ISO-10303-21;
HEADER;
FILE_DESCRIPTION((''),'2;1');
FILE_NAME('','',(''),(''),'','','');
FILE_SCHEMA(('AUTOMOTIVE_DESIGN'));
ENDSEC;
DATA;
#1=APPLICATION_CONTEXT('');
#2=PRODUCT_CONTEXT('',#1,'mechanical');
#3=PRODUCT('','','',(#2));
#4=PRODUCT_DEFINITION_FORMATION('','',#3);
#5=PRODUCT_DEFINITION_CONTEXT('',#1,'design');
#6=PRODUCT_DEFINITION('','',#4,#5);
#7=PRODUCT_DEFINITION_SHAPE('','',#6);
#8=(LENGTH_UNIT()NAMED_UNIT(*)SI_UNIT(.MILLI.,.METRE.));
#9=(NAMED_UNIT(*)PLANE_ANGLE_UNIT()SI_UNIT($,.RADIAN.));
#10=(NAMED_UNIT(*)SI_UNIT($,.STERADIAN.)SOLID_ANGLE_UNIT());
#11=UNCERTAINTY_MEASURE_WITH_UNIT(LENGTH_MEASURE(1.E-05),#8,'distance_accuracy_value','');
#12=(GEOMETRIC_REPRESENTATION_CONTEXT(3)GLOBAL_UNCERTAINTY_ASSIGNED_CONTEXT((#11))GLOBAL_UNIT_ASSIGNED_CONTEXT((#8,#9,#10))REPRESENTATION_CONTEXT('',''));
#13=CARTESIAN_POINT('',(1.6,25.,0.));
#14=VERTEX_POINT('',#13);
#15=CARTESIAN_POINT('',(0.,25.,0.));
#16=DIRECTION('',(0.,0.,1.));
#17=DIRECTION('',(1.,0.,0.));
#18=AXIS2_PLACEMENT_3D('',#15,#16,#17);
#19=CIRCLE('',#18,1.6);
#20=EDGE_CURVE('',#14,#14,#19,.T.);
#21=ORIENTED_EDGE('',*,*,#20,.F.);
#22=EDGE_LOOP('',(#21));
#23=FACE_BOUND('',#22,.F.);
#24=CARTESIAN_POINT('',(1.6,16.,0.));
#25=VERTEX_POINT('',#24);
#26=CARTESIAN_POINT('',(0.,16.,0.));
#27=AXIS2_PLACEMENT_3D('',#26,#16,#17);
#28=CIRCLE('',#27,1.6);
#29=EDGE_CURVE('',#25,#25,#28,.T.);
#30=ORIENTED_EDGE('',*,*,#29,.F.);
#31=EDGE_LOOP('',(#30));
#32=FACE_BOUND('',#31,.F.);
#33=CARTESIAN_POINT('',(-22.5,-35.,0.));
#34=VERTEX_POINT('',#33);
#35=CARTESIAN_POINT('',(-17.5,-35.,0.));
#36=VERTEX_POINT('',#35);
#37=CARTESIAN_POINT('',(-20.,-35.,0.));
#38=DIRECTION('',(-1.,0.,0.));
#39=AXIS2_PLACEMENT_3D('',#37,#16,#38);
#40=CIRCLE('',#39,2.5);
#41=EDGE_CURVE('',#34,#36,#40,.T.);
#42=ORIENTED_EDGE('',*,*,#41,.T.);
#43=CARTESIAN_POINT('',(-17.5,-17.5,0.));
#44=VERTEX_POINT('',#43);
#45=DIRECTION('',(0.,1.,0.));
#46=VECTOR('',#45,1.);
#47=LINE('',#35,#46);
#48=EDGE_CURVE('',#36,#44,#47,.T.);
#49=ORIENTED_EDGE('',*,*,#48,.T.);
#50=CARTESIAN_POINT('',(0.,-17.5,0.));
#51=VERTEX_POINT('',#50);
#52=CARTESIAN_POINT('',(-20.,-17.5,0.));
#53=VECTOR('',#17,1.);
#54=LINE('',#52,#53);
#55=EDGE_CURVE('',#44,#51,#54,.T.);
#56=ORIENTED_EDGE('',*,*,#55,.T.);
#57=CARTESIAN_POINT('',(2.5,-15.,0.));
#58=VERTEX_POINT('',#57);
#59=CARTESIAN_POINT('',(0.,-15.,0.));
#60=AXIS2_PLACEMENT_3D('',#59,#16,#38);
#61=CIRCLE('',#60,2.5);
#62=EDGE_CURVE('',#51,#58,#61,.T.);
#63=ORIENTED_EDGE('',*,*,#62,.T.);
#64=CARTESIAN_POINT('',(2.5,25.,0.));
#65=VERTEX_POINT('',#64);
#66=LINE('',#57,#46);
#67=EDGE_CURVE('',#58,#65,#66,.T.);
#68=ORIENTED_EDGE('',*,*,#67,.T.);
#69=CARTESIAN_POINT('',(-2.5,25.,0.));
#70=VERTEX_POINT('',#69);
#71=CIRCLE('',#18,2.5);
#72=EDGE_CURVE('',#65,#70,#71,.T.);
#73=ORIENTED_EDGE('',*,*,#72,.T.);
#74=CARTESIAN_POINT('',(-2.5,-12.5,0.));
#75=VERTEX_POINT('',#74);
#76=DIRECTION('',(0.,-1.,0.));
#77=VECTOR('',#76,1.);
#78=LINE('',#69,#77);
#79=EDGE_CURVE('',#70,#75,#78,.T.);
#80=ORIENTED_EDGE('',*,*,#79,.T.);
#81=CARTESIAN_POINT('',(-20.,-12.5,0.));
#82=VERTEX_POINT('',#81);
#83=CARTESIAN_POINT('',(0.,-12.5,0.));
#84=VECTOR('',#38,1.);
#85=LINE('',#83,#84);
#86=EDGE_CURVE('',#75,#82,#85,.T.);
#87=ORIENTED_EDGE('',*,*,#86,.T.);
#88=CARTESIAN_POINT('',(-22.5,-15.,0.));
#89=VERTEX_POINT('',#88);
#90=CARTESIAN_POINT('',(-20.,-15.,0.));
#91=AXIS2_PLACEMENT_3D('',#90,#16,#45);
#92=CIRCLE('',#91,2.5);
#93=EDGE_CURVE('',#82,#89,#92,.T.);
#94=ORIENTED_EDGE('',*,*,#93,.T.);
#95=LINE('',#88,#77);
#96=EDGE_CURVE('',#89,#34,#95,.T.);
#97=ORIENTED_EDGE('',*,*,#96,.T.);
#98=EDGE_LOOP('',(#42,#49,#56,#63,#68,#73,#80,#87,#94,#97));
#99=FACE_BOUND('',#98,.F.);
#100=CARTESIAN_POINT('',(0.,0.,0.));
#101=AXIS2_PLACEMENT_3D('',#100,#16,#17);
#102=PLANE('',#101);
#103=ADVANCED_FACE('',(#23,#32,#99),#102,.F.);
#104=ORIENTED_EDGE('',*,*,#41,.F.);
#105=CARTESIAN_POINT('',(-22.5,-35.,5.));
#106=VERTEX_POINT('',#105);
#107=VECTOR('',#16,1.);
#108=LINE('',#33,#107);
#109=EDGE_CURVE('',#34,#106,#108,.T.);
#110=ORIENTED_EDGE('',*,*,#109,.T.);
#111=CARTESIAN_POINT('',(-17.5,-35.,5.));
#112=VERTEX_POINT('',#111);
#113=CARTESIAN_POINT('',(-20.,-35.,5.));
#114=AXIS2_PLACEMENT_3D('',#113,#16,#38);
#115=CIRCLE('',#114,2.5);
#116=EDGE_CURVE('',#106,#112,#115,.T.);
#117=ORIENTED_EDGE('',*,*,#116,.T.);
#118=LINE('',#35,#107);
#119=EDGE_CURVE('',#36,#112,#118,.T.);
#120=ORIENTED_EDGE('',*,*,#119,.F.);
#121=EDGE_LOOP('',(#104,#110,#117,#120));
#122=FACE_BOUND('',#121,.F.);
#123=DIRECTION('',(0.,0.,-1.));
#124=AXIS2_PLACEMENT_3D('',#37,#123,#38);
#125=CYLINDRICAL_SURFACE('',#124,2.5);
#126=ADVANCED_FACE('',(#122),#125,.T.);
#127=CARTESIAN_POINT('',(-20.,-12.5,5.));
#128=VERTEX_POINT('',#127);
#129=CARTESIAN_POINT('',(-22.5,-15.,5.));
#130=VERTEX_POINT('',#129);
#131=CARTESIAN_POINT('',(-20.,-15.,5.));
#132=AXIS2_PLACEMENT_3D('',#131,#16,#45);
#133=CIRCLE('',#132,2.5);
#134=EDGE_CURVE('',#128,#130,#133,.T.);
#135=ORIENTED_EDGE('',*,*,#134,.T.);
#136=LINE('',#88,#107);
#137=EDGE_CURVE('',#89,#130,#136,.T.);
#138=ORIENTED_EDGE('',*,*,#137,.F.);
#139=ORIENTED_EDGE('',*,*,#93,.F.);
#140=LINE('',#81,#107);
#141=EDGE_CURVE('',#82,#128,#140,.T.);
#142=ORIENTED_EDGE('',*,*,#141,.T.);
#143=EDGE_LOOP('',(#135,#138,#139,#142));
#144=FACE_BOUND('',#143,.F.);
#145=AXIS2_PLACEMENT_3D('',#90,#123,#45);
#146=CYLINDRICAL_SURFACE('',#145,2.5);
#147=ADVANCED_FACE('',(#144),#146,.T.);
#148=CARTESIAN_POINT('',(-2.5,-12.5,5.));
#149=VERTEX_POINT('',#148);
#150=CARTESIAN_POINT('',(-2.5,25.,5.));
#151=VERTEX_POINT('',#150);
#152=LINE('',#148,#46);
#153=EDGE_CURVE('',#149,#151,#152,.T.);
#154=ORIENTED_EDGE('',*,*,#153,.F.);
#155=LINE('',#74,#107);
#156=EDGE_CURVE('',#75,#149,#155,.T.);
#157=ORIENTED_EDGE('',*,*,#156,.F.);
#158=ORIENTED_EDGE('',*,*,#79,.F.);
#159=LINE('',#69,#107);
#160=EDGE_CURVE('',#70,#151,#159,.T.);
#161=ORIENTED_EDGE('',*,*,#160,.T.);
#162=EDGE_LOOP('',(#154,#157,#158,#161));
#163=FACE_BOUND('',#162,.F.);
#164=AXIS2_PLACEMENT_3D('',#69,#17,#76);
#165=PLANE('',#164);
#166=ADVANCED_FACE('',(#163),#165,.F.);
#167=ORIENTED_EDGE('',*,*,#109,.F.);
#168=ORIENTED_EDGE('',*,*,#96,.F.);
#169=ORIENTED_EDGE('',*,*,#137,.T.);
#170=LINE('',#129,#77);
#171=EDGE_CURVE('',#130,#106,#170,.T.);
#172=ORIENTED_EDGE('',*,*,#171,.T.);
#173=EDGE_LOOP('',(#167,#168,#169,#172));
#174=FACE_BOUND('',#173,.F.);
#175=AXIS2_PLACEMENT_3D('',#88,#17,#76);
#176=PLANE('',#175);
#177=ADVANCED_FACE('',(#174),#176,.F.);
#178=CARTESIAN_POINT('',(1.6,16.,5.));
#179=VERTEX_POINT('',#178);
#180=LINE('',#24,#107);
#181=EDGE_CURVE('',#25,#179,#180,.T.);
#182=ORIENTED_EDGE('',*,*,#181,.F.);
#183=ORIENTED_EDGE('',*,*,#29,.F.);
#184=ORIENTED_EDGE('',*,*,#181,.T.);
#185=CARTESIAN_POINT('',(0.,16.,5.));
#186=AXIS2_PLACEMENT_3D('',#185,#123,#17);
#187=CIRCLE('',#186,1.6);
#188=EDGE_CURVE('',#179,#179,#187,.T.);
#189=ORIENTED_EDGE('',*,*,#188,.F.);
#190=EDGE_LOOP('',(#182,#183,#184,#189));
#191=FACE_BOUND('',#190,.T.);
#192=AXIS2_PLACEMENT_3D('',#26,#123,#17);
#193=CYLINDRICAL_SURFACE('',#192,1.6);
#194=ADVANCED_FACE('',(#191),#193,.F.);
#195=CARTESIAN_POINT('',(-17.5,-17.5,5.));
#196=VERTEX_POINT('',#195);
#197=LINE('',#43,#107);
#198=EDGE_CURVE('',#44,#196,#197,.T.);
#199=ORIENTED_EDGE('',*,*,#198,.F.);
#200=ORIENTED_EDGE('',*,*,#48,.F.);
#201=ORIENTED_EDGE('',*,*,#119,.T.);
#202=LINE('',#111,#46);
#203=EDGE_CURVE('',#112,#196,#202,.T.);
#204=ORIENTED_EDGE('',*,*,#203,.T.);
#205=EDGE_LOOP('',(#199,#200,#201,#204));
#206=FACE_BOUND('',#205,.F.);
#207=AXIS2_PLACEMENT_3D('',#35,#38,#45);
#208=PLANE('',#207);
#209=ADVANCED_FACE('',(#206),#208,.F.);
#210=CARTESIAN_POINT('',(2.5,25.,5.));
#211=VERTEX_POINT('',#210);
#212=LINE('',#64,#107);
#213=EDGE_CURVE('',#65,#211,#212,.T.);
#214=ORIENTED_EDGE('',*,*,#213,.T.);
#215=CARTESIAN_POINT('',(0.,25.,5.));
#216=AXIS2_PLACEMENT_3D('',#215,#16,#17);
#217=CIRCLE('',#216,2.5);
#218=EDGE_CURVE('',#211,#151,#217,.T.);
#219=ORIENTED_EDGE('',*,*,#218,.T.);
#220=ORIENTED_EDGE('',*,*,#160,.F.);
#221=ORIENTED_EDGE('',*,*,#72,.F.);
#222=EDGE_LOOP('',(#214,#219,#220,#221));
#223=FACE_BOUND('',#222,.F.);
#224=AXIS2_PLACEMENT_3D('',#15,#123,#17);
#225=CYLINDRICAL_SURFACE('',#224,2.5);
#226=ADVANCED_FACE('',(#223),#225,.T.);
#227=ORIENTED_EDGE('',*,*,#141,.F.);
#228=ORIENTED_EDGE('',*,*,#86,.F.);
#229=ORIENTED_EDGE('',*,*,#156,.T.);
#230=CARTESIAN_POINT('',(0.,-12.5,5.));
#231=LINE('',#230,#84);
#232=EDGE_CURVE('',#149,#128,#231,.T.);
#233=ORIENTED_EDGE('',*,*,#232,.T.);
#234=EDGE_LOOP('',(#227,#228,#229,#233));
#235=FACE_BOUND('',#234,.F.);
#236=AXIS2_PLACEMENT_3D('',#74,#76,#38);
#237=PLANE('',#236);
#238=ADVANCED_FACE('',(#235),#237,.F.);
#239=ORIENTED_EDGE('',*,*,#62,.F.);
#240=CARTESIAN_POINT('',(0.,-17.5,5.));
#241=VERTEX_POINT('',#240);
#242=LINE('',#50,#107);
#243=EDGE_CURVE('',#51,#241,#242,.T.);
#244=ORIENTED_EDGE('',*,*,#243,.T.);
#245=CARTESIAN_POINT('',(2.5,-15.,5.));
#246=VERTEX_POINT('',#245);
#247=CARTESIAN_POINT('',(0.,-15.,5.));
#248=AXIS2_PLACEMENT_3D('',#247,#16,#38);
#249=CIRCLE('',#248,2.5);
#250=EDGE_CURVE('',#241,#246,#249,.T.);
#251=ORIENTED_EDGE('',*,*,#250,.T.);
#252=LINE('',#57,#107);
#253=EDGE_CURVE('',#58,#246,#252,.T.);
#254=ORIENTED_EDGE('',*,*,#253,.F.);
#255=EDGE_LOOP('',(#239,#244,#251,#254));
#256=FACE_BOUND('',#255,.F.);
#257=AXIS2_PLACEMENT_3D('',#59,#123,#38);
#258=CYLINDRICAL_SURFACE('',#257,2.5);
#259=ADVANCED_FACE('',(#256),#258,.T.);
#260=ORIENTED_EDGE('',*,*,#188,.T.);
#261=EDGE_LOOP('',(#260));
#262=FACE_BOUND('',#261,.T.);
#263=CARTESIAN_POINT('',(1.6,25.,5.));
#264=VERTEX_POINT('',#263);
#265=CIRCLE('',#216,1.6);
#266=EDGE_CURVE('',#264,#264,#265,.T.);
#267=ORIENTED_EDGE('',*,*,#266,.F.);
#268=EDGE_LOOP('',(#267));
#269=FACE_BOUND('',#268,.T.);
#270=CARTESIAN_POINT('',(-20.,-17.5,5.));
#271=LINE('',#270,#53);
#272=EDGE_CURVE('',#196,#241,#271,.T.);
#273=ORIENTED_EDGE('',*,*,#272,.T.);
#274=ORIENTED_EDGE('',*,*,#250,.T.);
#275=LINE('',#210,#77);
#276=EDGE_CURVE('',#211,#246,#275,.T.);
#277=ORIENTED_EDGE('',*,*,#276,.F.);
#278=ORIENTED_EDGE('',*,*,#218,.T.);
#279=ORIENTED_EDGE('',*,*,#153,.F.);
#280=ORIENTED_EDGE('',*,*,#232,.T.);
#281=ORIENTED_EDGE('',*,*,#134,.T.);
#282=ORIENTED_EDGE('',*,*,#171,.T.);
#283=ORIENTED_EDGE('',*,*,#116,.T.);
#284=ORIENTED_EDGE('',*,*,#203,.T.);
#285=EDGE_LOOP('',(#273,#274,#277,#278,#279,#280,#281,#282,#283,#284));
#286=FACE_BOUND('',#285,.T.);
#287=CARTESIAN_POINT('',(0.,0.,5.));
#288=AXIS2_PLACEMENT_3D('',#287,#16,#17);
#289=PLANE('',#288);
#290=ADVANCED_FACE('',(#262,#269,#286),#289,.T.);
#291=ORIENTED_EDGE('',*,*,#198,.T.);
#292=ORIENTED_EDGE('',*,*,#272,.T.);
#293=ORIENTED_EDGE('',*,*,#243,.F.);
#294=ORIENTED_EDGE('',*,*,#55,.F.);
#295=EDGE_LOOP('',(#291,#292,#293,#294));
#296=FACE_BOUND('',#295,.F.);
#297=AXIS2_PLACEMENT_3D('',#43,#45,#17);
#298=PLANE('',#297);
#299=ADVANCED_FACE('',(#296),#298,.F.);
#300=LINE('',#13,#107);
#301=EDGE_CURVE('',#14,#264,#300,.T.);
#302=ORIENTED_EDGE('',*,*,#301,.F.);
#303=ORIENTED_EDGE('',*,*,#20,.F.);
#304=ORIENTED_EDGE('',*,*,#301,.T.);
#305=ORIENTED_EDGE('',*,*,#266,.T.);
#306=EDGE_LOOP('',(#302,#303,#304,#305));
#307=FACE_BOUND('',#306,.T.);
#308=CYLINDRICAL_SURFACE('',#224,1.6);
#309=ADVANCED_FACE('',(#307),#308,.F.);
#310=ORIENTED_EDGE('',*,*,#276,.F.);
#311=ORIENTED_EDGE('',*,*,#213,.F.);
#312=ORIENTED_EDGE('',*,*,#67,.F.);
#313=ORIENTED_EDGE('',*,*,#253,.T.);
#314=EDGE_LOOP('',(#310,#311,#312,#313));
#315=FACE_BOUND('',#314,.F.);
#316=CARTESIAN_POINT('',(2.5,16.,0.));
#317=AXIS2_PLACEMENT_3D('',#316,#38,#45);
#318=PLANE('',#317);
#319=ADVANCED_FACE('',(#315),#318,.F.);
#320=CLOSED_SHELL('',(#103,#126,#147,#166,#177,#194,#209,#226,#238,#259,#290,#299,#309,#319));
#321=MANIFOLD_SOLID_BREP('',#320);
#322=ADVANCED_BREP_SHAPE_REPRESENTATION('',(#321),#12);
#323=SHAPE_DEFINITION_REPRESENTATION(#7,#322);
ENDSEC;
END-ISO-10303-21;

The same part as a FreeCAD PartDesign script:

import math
import FreeCAD as App
import Part
import Sketcher
from FreeCAD import Vector
Q = App.Units.Quantity

doc = App.newDocument("Part")
params = doc.addObject("Spreadsheet::Sheet", "Params")
for row, (alias, value) in enumerate([
    ("sketch1_diameter", "3.2 mm"),
    ("sketch1_radius", "2.5 mm"),
    ("sketch1_height", "20 mm"),
    ("sketch1_height2", "40 mm"),
    ("pad1_length", "5 mm"),
], start=1):
    params.set(f"A{row}", alias)
    params.set(f"B{row}", "=" + value)
    params.setAlias(f"B{row}", alias)

body = doc.addObject("PartDesign::Body", "Body")

sketch1 = body.newObject("Sketcher::SketchObject", "Sketch")
sketch1.AttachmentSupport = (doc.getObject("XY_Plane"), [""])
sketch1.MapMode = "FlatFace"
sketch1.addGeometry([
    Part.ArcOfCircle(Part.Circle(Vector(0, 25, 0), Vector(0, 0, 1), 2.5), math.radians(0), math.radians(180)),
    Part.LineSegment(Vector(-2.5, 25, 0), Vector(-2.5, -12.5, 0)),
    Part.LineSegment(Vector(-2.5, -12.5, 0), Vector(-20, -12.5, 0)),
    Part.ArcOfCircle(Part.Circle(Vector(-20, -15, 0), Vector(0, 0, 1), 2.5), math.radians(90), math.radians(180)),
    Part.LineSegment(Vector(-22.5, -15, 0), Vector(-22.5, -35, 0)),
    Part.ArcOfCircle(Part.Circle(Vector(-20, -35, 0), Vector(0, 0, 1), 2.5), math.radians(180), math.radians(360)),
    Part.LineSegment(Vector(-17.5, -35, 0), Vector(-17.5, -17.5, 0)),
    Part.LineSegment(Vector(-17.5, -17.5, 0), Vector(0, -17.5, 0)),
    Part.ArcOfCircle(Part.Circle(Vector(0, -15, 0), Vector(0, 0, 1), 2.5), math.radians(-90), math.radians(0)),
    Part.LineSegment(Vector(2.5, -15, 0), Vector(2.5, 25, 0)),
    Part.Circle(Vector(0, 16, 0), Vector(0, 0, 1), 1.6),
    Part.Circle(Vector(0, 25, 0), Vector(0, 0, 1), 1.6),
], False)
sketch1.addConstraint([
    Sketcher.Constraint("Tangent", 0, 2, 1, 1),
    Sketcher.Constraint("Coincident", 1, 2, 2, 1),
    Sketcher.Constraint("Tangent", 2, 2, 3, 1),
    Sketcher.Constraint("Tangent", 3, 2, 4, 1),
    Sketcher.Constraint("Tangent", 4, 2, 5, 1),
    Sketcher.Constraint("Tangent", 5, 2, 6, 1),
    Sketcher.Constraint("Coincident", 6, 2, 7, 1),
    Sketcher.Constraint("Tangent", 7, 2, 8, 1),
    Sketcher.Constraint("Tangent", 8, 2, 9, 1),
    Sketcher.Constraint("Tangent", 9, 2, 0, 1),
    Sketcher.Constraint("Vertical", 1),
    Sketcher.Constraint("Horizontal", 2),
    Sketcher.Constraint("Vertical", 4),
    Sketcher.Constraint("Vertical", 6),
    Sketcher.Constraint("Horizontal", 7),
    Sketcher.Constraint("Vertical", 9),
    Sketcher.Constraint("Coincident", 11, 3, 0, 3),
    Sketcher.Constraint("Equal", 0, 3),
    Sketcher.Constraint("Equal", 3, 5),
    Sketcher.Constraint("Equal", 5, 8),
    Sketcher.Constraint("Equal", 10, 11),
    Sketcher.Constraint("PointOnObject", 0, 3, -2),
    Sketcher.Constraint("PointOnObject", 10, 3, -2),
    Sketcher.Constraint("Horizontal", 3, 3, 8, 3),
    Sketcher.Constraint("Equal", 7, 6),
    Sketcher.Constraint("Diameter", 10, Q("3.2 mm")),
    Sketcher.Constraint("Radius", 0, Q("2.5 mm")),
    Sketcher.Constraint("DistanceY", 4, 2, 4, 1, Q("20 mm")),
    Sketcher.Constraint("DistanceY", 10, 3, 0, 3, Q("9 mm")),
    Sketcher.Constraint("DistanceY", 9, 1, 9, 2, Q("40 mm")),
    Sketcher.Constraint("DistanceY", -1, 1, 0, 3, Q("25 mm")),
])
sketch1.setExpression("Constraints[25]", "Params.sketch1_diameter")
sketch1.setExpression("Constraints[26]", "Params.sketch1_radius")
sketch1.setExpression("Constraints[27]", "Params.sketch1_height")
sketch1.setExpression("Constraints[29]", "Params.sketch1_height2")
pad1 = body.newObject("PartDesign::Pad", "Pad")
pad1.Profile = sketch1
pad1.setExpression("Length", "Params.pad1_length")

doc.recompute()
